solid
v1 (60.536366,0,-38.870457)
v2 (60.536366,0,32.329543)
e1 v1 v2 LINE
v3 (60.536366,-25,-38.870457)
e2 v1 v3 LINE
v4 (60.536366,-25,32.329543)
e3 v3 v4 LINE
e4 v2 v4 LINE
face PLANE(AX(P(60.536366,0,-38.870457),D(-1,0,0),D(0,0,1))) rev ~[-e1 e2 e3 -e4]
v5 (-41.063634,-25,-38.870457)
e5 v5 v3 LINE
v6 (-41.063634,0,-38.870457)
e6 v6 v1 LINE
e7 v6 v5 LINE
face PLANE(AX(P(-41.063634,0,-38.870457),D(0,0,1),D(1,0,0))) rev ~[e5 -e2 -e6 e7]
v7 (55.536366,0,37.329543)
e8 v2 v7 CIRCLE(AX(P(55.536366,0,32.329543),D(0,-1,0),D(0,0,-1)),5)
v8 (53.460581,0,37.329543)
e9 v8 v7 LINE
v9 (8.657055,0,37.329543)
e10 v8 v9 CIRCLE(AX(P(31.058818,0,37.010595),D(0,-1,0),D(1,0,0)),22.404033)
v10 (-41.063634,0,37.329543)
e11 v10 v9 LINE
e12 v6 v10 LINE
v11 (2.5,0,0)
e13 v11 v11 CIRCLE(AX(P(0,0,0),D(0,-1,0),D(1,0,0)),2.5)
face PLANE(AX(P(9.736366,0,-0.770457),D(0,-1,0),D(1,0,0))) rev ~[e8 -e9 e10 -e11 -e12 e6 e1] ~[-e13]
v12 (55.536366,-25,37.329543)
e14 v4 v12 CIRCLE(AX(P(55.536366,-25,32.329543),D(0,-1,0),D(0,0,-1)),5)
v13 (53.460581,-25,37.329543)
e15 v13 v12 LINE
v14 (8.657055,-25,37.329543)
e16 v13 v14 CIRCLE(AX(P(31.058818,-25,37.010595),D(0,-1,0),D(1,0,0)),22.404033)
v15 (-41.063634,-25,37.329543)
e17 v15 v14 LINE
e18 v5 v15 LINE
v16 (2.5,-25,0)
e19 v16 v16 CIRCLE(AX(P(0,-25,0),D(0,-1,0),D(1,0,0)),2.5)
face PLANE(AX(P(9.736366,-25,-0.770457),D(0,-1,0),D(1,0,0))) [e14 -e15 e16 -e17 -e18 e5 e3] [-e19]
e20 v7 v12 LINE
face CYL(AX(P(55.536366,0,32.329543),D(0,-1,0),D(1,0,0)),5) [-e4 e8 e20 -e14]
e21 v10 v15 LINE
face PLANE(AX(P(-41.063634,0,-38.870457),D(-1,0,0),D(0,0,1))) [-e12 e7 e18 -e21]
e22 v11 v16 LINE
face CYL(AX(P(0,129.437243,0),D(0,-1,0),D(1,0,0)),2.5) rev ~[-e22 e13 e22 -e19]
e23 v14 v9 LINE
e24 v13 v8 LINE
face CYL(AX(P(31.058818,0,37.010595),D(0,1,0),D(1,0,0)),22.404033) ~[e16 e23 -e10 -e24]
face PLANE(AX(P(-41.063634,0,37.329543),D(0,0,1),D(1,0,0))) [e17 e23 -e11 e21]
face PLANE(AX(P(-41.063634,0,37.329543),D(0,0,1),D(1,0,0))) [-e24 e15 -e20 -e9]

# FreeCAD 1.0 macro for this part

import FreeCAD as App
import Part
import Sketcher
Q = App.Units.Quantity


def edges_at(feature, points):
    """Names of the edges that pass closest to the given points."""
    edges = feature.Shape.Edges
    near = lambda p: min(range(len(edges)), key=lambda i: edges[i].distToShape(Part.Vertex(*p))[0])
    return sorted({f"Edge{near(p) + 1}" for p in points})


def add_polygon(sketch, points):
    """Adds a closed chain of lines whose ends are joined by coincident constraints."""
    first, n = sketch.GeometryCount, len(points)
    for a, b in zip(points, points[1:] + points[:1]):
        sketch.addGeometry(Part.LineSegment(App.Vector(*a, 0), App.Vector(*b, 0)), False)
    for i in range(n):
        sketch.addConstraint(Sketcher.Constraint("Coincident", first + i, 2, first + (i + 1) % n, 1))

doc = App.newDocument("Part")
body = doc.addObject("PartDesign::Body", "Body")

# Sketch on XZ plane
sketch1 = body.newObject("Sketcher::SketchObject", "Sketch")
sketch1.AttachmentSupport = (doc.getObject("XZ_Plane"), [""])
sketch1.MapMode = "FlatFace"
add_polygon(sketch1, [(-41, 37), (-41, -39), (61, -39), (61, 37)])  # lines 0-3
sketch1.addConstraint([
    Sketcher.Constraint("Vertical", 0),
    Sketcher.Constraint("Horizontal", 1),
    Sketcher.Constraint("Vertical", 2),
    Sketcher.Constraint("Horizontal", 3),
    Sketcher.Constraint("DistanceX", 1, 1, 1, 2, Q("101.6 mm")),
    Sketcher.Constraint("DistanceY", 0, 2, 0, 1, Q("76.2 mm")),
    Sketcher.Constraint("DistanceX", 0, 2, -1, 1, Q("41.063634 mm")),
    Sketcher.Constraint("DistanceY", 0, 2, -1, 1, Q("38.870457 mm")),
])
pad1 = body.newObject("PartDesign::Pad", "Pad")
pad1.Profile = sketch1
pad1.Length = 25
doc.recompute()

fillet = body.newObject("PartDesign::Fillet", "Fillet")
fillet.Base = (pad1, edges_at(pad1, [(60.536, -12.5, 37.33)]))
fillet.Radius = 5

# Sketch on XZ plane
sketch2 = body.newObject("Sketcher::SketchObject", "Sketch001")
sketch2.AttachmentSupport = (doc.getObject("XZ_Plane"), [""])
sketch2.MapMode = "FlatFace"
sketch2.addGeometry(Part.Circle(App.Vector(0, 0, 0), App.Vector(0, 0, 1), 2.5), False)
sketch2.addConstraint([
    Sketcher.Constraint("Coincident", 0, 3, -1, 1),
    Sketcher.Constraint("Diameter", 0, Q("5 mm")),
])
doc.recompute()
hole = body.newObject("PartDesign::Hole", "Hole")
hole.Profile = sketch2
hole.ThreadType = "None"
hole.Diameter = 5
hole.DepthType = "ThroughAll"
hole.Reversed = True

# Sketch on XZ plane
sketch3 = body.newObject("Sketcher::SketchObject", "Sketch002")
sketch3.AttachmentSupport = (doc.getObject("XZ_Plane"), [""])
sketch3.MapMode = "FlatFace"
sketch3.addGeometry(Part.Circle(App.Vector(31, 37, 0), App.Vector(0, 0, 1), 22), False)
sketch3.addConstraint([
    Sketcher.Constraint("Diameter", 0, Q("44.808066 mm")),
    Sketcher.Constraint("DistanceX", -1, 1, 0, 3, Q("31.058818 mm")),
    Sketcher.Constraint("DistanceY", -1, 1, 0, 3, Q("37.010595 mm")),
])
pad2 = body.newObject("PartDesign::Pad", "Pad001")
pad2.Profile = sketch3
pad2.Length = 25

doc.recompute()
